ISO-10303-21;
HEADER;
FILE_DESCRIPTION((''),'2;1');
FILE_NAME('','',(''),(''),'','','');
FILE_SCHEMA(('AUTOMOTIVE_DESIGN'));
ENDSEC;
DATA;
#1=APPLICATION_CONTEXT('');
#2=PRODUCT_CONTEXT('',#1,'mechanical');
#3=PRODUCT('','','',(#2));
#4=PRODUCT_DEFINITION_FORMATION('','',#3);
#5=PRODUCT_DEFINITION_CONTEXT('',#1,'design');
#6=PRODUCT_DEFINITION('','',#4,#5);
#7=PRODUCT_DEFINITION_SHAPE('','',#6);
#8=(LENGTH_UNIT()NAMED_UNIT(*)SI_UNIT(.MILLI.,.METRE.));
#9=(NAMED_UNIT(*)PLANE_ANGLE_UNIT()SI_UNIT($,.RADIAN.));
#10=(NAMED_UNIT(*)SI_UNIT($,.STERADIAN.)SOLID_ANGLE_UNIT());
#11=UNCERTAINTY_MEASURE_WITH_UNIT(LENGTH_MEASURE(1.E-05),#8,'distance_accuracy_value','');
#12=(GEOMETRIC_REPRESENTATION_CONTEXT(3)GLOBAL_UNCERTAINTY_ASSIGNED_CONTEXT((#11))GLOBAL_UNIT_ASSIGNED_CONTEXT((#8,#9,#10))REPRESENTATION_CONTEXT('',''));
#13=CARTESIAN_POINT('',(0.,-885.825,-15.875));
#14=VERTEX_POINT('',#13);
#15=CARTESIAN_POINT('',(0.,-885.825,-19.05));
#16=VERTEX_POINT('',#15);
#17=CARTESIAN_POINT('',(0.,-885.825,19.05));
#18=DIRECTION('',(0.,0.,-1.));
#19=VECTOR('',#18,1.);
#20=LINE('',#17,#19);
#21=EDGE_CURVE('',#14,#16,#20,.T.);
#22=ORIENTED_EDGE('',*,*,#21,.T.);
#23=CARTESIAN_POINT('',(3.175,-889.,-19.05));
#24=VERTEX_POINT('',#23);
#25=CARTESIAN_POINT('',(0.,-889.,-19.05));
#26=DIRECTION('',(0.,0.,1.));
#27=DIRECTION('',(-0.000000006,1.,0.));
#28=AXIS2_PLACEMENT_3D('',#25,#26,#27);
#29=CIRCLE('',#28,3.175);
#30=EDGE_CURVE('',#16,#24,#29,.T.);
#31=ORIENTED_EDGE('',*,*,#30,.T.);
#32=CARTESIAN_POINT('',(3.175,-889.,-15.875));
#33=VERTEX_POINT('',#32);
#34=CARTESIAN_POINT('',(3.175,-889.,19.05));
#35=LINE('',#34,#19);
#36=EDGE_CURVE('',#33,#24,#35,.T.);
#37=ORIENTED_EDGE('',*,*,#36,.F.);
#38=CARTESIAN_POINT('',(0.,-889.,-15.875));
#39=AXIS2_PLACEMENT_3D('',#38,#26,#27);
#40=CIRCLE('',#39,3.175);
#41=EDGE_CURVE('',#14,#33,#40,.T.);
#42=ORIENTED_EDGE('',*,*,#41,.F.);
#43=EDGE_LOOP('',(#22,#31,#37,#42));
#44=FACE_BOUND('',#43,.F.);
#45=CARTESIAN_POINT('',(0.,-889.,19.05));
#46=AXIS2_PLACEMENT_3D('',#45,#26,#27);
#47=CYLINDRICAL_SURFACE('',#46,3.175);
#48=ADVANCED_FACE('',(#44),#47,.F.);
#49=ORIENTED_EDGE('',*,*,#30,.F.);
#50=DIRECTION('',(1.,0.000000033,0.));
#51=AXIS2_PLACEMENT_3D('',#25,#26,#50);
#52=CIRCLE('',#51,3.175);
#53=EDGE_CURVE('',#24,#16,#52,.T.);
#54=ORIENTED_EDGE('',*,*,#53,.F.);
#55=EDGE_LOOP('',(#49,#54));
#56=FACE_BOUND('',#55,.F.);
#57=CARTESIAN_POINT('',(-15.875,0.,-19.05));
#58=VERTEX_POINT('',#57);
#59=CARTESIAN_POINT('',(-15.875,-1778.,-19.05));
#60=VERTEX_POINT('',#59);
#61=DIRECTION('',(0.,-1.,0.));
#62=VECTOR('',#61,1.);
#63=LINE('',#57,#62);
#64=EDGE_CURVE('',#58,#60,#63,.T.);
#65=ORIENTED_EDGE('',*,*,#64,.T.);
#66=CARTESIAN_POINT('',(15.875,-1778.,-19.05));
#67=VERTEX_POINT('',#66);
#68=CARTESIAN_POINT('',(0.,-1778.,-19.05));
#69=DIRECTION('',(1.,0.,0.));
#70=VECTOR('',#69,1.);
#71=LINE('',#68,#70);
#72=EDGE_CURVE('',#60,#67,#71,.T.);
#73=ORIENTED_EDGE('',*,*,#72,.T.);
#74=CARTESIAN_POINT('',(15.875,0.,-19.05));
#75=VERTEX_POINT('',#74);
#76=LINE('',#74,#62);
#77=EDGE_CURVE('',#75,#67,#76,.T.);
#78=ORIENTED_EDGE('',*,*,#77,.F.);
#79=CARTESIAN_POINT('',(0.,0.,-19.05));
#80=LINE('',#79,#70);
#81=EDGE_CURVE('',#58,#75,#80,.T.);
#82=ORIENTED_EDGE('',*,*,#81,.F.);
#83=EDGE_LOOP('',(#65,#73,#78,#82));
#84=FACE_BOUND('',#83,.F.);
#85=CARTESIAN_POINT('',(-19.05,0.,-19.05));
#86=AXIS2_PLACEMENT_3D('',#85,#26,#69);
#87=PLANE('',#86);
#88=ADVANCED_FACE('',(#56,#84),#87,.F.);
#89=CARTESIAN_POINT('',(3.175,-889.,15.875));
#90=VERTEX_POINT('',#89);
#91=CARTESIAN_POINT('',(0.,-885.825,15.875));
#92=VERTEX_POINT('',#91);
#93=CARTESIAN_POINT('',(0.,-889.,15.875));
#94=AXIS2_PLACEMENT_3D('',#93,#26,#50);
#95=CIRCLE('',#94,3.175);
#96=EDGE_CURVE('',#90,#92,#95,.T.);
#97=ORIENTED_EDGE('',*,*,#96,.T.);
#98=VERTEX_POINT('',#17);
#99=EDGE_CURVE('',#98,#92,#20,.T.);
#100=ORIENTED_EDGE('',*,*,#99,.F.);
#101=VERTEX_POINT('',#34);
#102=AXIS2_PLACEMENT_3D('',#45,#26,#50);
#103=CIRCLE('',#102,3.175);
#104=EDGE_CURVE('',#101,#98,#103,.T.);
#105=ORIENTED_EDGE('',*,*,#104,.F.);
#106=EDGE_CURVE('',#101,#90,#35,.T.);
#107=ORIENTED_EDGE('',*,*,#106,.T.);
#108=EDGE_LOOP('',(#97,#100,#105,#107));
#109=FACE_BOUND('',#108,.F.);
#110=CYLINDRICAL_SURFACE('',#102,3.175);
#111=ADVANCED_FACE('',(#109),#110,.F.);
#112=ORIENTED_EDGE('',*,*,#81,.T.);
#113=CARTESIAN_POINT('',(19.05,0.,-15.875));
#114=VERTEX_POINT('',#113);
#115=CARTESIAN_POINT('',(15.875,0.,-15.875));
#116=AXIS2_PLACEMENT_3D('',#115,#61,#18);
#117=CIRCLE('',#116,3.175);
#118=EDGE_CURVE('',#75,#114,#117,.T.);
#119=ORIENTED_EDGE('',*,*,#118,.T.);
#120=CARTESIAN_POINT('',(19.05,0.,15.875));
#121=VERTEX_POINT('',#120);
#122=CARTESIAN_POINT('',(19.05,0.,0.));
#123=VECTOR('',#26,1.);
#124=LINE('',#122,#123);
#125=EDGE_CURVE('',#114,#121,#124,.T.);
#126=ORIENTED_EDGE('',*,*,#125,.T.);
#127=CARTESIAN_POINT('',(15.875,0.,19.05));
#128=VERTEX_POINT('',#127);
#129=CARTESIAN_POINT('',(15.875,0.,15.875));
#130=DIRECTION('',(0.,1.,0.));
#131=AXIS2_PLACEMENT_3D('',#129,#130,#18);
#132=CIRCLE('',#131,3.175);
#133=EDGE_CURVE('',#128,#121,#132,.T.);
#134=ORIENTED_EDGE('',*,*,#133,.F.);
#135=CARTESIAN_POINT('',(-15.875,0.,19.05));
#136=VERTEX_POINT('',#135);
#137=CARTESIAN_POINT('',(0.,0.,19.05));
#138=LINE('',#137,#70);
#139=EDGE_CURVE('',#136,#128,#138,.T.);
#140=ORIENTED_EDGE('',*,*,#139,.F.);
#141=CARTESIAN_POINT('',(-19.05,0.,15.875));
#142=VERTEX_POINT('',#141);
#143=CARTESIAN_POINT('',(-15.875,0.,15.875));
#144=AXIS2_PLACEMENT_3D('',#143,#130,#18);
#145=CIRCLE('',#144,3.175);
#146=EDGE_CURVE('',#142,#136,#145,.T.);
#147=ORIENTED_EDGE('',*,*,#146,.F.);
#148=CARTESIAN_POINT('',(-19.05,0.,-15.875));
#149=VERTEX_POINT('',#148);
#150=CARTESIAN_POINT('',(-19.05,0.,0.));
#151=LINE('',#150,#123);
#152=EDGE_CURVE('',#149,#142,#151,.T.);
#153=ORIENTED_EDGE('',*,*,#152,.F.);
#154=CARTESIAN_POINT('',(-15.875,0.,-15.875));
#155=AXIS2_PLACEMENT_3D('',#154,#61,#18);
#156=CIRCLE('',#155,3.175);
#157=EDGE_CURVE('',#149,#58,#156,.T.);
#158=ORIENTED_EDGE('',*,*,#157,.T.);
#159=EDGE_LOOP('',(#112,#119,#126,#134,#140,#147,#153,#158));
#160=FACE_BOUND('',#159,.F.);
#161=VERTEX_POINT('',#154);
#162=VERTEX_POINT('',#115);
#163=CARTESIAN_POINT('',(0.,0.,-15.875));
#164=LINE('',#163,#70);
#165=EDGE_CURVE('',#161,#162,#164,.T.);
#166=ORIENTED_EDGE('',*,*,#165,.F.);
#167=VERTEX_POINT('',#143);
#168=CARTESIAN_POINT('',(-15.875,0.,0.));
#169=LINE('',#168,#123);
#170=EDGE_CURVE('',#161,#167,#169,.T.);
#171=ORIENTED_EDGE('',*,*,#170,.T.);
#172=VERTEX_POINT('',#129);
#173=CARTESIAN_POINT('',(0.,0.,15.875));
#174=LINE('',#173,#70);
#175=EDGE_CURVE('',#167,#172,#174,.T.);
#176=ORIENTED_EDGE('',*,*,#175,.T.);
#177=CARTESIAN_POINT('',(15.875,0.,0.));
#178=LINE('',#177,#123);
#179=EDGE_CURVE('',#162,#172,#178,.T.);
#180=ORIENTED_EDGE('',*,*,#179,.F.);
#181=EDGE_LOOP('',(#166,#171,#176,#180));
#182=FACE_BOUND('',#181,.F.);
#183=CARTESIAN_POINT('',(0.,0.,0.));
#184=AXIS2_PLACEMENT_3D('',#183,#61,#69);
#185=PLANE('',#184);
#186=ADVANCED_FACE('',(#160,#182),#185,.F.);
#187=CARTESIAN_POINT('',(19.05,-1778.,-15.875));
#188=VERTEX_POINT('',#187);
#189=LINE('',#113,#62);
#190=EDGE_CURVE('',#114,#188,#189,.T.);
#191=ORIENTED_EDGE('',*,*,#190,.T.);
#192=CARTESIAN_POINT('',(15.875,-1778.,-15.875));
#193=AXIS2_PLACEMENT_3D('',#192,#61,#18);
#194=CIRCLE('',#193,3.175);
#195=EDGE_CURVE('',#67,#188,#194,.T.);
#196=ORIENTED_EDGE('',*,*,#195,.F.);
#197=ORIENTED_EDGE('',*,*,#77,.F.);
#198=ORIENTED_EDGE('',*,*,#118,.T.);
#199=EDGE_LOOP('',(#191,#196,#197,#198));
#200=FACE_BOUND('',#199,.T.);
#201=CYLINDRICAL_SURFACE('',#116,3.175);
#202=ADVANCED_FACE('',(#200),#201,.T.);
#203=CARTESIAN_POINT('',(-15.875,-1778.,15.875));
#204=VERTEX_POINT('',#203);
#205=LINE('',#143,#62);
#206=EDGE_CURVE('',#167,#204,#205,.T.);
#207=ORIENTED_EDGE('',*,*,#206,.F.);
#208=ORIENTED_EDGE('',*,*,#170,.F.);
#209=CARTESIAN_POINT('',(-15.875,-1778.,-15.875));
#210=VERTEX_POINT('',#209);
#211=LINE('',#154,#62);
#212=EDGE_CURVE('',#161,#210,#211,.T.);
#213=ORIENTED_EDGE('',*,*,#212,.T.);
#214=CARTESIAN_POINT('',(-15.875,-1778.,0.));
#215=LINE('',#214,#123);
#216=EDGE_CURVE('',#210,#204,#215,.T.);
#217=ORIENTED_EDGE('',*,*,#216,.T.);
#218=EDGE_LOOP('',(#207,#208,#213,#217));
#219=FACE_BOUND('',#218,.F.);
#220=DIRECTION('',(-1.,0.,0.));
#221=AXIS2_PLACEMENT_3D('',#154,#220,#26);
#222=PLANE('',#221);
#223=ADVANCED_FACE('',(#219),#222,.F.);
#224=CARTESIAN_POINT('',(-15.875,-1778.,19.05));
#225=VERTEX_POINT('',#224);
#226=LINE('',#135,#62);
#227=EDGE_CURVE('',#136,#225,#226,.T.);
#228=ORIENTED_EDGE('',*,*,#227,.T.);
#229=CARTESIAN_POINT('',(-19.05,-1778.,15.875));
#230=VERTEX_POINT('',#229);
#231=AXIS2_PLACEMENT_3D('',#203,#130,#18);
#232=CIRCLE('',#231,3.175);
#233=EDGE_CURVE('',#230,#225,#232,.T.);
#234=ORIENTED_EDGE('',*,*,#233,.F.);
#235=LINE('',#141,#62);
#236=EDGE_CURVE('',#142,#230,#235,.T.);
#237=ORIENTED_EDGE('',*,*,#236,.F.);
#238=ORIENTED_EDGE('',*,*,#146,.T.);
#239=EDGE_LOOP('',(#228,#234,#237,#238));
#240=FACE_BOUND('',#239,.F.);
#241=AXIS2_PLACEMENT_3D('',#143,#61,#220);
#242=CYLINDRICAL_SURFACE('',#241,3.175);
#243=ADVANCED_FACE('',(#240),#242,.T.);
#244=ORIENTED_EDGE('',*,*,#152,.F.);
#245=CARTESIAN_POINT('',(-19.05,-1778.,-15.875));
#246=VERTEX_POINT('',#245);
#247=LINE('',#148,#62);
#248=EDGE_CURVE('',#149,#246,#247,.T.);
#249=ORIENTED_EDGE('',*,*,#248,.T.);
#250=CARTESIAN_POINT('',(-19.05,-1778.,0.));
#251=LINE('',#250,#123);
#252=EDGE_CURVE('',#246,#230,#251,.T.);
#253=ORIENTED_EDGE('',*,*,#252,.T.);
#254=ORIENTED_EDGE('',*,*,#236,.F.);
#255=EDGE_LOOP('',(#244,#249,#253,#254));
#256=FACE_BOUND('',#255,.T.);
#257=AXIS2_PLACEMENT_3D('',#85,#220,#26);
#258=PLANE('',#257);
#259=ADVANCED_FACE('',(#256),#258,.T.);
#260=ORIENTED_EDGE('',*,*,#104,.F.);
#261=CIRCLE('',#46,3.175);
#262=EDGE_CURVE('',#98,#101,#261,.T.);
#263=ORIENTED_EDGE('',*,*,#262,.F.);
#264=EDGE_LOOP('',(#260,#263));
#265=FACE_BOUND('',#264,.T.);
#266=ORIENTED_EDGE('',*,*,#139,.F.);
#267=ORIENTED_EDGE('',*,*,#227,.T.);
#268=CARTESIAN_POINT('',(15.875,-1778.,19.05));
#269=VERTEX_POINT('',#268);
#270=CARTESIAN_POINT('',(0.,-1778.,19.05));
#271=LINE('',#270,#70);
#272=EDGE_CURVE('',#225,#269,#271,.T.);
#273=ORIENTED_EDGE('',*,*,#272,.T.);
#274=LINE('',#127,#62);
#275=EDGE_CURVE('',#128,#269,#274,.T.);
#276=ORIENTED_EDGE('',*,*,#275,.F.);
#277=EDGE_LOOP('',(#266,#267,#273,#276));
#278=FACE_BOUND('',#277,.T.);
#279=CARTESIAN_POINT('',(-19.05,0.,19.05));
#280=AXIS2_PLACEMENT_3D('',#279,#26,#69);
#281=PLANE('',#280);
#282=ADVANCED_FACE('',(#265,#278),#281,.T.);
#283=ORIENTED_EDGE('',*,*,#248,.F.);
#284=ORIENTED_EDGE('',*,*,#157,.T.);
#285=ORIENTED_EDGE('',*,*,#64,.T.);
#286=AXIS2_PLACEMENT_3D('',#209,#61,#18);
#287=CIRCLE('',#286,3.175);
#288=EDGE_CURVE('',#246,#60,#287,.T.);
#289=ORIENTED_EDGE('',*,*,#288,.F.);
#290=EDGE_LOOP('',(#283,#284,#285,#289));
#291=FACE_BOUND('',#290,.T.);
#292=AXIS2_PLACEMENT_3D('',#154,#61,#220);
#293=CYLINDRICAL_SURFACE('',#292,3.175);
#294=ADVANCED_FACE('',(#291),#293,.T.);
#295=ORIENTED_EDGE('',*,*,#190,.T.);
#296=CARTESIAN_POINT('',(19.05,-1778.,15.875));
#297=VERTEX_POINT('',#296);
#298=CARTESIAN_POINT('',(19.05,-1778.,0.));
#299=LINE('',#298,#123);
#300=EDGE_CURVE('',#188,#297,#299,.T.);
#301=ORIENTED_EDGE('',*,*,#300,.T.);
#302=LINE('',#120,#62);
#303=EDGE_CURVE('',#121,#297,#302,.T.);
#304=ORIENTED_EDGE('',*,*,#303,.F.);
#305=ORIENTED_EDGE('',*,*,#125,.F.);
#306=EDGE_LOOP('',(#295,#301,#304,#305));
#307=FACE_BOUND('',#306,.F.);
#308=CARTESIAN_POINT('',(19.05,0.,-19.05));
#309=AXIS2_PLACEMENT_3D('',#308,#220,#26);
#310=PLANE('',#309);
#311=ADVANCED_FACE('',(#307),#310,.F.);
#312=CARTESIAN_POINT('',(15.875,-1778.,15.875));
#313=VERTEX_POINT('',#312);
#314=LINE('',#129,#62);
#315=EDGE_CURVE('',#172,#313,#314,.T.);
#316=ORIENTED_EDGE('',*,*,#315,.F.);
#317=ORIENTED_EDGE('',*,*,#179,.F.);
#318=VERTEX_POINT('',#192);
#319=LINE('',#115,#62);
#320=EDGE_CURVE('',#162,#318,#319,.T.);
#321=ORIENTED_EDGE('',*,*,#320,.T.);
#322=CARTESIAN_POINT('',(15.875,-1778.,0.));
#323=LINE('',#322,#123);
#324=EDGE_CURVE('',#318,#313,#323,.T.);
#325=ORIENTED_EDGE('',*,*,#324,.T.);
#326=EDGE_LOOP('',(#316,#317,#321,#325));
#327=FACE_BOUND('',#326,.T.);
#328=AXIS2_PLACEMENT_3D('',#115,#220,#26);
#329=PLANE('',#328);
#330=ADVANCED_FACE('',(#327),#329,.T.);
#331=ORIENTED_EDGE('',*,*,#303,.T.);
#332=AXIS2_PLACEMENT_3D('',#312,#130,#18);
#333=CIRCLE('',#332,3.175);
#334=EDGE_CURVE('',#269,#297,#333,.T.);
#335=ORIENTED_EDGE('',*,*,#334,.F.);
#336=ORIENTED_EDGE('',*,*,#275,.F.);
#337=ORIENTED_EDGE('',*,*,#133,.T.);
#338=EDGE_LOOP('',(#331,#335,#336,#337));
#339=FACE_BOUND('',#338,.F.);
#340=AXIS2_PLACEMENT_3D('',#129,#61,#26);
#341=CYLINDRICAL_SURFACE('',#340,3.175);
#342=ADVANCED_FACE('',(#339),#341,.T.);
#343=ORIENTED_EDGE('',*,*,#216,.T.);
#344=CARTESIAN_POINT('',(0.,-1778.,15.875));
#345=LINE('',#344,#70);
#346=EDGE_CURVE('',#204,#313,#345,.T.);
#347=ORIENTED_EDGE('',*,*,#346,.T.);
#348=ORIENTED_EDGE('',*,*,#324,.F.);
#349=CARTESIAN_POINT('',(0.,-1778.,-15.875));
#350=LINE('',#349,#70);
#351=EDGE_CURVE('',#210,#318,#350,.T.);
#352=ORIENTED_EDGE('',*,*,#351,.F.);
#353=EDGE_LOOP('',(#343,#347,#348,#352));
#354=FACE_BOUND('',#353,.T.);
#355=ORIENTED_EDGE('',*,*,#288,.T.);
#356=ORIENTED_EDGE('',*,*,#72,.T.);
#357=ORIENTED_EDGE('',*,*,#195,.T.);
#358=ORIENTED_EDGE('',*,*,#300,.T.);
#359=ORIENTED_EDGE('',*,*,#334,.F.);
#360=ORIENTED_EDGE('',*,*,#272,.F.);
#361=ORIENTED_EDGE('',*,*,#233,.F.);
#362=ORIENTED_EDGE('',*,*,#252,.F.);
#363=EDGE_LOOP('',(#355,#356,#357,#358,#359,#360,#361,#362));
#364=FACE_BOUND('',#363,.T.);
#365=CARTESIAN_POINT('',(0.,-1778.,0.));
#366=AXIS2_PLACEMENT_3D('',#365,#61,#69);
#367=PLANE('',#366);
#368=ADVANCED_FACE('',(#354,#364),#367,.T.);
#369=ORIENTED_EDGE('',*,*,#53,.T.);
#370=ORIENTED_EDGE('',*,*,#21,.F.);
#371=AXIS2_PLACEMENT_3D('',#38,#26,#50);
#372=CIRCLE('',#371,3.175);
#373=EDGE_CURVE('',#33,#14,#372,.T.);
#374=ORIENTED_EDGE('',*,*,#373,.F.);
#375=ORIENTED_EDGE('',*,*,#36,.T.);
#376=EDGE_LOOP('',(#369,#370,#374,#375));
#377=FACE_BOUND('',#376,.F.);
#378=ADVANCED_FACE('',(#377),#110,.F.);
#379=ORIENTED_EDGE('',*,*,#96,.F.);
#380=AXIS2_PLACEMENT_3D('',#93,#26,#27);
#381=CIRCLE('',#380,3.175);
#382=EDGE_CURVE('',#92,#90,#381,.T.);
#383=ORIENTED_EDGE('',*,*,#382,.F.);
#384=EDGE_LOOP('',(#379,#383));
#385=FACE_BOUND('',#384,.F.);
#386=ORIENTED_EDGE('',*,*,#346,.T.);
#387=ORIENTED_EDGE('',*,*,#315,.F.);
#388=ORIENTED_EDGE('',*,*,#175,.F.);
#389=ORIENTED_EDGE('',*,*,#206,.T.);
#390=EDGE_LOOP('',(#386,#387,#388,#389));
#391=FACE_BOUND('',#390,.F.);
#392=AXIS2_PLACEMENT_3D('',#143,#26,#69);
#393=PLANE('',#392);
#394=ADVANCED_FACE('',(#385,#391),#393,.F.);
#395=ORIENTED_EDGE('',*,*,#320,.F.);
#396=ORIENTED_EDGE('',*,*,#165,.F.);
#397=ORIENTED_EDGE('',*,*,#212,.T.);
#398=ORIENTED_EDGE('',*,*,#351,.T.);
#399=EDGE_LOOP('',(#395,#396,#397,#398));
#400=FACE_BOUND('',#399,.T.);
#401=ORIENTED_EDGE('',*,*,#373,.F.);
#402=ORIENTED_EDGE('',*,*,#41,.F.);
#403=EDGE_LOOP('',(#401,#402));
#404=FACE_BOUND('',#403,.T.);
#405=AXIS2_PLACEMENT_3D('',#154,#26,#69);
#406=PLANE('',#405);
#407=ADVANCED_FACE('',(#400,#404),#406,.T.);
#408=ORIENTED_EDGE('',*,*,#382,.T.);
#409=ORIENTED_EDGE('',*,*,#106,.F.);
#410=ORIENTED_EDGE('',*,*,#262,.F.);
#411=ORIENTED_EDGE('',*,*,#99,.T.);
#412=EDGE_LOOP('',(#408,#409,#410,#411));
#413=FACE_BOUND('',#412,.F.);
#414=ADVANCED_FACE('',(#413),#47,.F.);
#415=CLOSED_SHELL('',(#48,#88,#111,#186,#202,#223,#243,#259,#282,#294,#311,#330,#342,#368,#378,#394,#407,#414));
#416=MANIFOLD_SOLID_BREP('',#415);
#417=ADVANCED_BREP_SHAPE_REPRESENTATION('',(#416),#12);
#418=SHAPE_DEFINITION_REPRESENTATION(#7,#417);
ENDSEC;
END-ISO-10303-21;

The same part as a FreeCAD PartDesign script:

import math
import FreeCAD as App
import Part
import Sketcher
from FreeCAD import Vector
Q = App.Units.Quantity


def edges_at(feature, points):
    """Names of the edges that pass closest to the given points."""
    edges = feature.Shape.Edges
    near = lambda p: min(range(len(edges)), key=lambda i: edges[i].distToShape(Part.Vertex(*p))[0])
    return sorted({f"Edge{near(p) + 1}" for p in points})

doc = App.newDocument("Part")
params = doc.addObject("Spreadsheet::Sheet", "Params")
for row, (alias, value) in enumerate([
    ("sketch1_width", "1.5 in"),
    ("sketch1_width2", "1.25 in"),
    ("pad1_length", "70 in"),
    ("fillet_radius", "0.125 in"),
    ("sketch2_radius", "0.125 in"),
], start=1):
    params.set(f"A{row}", alias)
    params.set(f"B{row}", "=" + value)
    params.setAlias(f"B{row}", alias)

body = doc.addObject("PartDesign::Body", "Body")

# Sketch on XZ plane
sketch1 = body.newObject("Sketcher::SketchObject", "Sketch")
sketch1.AttachmentSupport = (doc.getObject("XZ_Plane"), [""])
sketch1.MapMode = "FlatFace"
sketch1.addGeometry([
    Part.LineSegment(Vector(-19, 19, 0), Vector(-19, -19, 0)),  # 0
    Part.LineSegment(Vector(-19, -19, 0), Vector(19, -19, 0)),  # 1
    Part.LineSegment(Vector(19, -19, 0), Vector(19, 19, 0)),  # 2
    Part.LineSegment(Vector(19, 19, 0), Vector(-19, 19, 0)),  # 3
    Part.LineSegment(Vector(16, -16, 0), Vector(-16, -16, 0)),  # 4
    Part.LineSegment(Vector(-16, -16, 0), Vector(-16, 16, 0)),  # 5
    Part.LineSegment(Vector(-16, 16, 0), Vector(16, 16, 0)),  # 6
    Part.LineSegment(Vector(16, 16, 0), Vector(16, -16, 0)),  # 7
], False)
sketch1.addConstraint([
    Sketcher.Constraint("Coincident", 0, 2, 1, 1),
    Sketcher.Constraint("Coincident", 1, 2, 2, 1),
    Sketcher.Constraint("Coincident", 2, 2, 3, 1),
    Sketcher.Constraint("Coincident", 3, 2, 0, 1),
    Sketcher.Constraint("Coincident", 4, 2, 5, 1),
    Sketcher.Constraint("Coincident", 5, 2, 6, 1),
    Sketcher.Constraint("Coincident", 6, 2, 7, 1),
    Sketcher.Constraint("Coincident", 7, 2, 4, 1),
    Sketcher.Constraint("Vertical", 0),
    Sketcher.Constraint("Horizontal", 1),
    Sketcher.Constraint("Vertical", 2),
    Sketcher.Constraint("Horizontal", 3),
    Sketcher.Constraint("Horizontal", 4),
    Sketcher.Constraint("Vertical", 5),
    Sketcher.Constraint("Horizontal", 6),
    Sketcher.Constraint("Vertical", 7),
    Sketcher.Constraint("Symmetric", 0, 2, 2, 2, -1, 1),
    Sketcher.Constraint("Symmetric", 4, 2, 6, 2, -1, 1),
    Sketcher.Constraint("Equal", 3, 0),
    Sketcher.Constraint("Equal", 6, 5),
    Sketcher.Constraint("DistanceX", 1, 1, 1, 2, Q("1.5 in")),
    Sketcher.Constraint("DistanceX", 4, 2, 4, 1, Q("1.25 in")),
])
sketch1.setExpression("Constraints[20]", "Params.sketch1_width")
sketch1.setExpression("Constraints[21]", "Params.sketch1_width2")
pad1 = body.newObject("PartDesign::Pad", "Pad")
pad1.Profile = sketch1
pad1.setExpression("Length", "Params.pad1_length")
doc.recompute()

fillet = body.newObject("PartDesign::Fillet", "Fillet")
fillet.Base = (pad1, edges_at(pad1, [
    (19.05, -889, 19.05),
    (19.05, -889, -19.05),
    (-19.05, -889, -19.05),
    (-19.05, -889, 19.05),
]))
fillet.setExpression("Radius", "Params.fillet_radius")

# Sketch on XY plane
sketch2 = body.newObject("Sketcher::SketchObject", "Sketch001")
sketch2.AttachmentSupport = (doc.getObject("XY_Plane"), [""])
sketch2.MapMode = "FlatFace"
sketch2.AttachmentOffset = App.Placement(Vector(0, 0, 0.75 * 25.4), App.Rotation())
sketch2.addGeometry([
    Part.ArcOfCircle(Part.Circle(Vector(0, -889, 0), Vector(0, 0, 1), 3.2), math.radians(90), math.radians(360)),
    Part.ArcOfCircle(Part.Circle(Vector(0, -889, 0), Vector(0, 0, 1), 3.2), math.radians(0), math.radians(90)),
], False)
sketch2.addConstraint([
    Sketcher.Constraint("Tangent", 0, 1, 1, 2),
    Sketcher.Constraint("Coincident", 1, 1, 0, 2),
    Sketcher.Constraint("PointOnObject", 0, 3, -2),
    Sketcher.Constraint("PointOnObject", 0, 1, -2),
    Sketcher.Constraint("Horizontal", 0, 3, 1, 1),
    Sketcher.Constraint("DistanceY", 0, 3, -1, 1, Q("35 in")),
    Sketcher.Constraint("Radius", 0, Q("0.125 in")),
])
sketch2.setExpression("Constraints[6]", "Params.sketch2_radius")
pocket1 = body.newObject("PartDesign::Pocket", "Pocket")
pocket1.Profile = sketch2
pocket1.Type = "ThroughAll"

doc.recompute()
